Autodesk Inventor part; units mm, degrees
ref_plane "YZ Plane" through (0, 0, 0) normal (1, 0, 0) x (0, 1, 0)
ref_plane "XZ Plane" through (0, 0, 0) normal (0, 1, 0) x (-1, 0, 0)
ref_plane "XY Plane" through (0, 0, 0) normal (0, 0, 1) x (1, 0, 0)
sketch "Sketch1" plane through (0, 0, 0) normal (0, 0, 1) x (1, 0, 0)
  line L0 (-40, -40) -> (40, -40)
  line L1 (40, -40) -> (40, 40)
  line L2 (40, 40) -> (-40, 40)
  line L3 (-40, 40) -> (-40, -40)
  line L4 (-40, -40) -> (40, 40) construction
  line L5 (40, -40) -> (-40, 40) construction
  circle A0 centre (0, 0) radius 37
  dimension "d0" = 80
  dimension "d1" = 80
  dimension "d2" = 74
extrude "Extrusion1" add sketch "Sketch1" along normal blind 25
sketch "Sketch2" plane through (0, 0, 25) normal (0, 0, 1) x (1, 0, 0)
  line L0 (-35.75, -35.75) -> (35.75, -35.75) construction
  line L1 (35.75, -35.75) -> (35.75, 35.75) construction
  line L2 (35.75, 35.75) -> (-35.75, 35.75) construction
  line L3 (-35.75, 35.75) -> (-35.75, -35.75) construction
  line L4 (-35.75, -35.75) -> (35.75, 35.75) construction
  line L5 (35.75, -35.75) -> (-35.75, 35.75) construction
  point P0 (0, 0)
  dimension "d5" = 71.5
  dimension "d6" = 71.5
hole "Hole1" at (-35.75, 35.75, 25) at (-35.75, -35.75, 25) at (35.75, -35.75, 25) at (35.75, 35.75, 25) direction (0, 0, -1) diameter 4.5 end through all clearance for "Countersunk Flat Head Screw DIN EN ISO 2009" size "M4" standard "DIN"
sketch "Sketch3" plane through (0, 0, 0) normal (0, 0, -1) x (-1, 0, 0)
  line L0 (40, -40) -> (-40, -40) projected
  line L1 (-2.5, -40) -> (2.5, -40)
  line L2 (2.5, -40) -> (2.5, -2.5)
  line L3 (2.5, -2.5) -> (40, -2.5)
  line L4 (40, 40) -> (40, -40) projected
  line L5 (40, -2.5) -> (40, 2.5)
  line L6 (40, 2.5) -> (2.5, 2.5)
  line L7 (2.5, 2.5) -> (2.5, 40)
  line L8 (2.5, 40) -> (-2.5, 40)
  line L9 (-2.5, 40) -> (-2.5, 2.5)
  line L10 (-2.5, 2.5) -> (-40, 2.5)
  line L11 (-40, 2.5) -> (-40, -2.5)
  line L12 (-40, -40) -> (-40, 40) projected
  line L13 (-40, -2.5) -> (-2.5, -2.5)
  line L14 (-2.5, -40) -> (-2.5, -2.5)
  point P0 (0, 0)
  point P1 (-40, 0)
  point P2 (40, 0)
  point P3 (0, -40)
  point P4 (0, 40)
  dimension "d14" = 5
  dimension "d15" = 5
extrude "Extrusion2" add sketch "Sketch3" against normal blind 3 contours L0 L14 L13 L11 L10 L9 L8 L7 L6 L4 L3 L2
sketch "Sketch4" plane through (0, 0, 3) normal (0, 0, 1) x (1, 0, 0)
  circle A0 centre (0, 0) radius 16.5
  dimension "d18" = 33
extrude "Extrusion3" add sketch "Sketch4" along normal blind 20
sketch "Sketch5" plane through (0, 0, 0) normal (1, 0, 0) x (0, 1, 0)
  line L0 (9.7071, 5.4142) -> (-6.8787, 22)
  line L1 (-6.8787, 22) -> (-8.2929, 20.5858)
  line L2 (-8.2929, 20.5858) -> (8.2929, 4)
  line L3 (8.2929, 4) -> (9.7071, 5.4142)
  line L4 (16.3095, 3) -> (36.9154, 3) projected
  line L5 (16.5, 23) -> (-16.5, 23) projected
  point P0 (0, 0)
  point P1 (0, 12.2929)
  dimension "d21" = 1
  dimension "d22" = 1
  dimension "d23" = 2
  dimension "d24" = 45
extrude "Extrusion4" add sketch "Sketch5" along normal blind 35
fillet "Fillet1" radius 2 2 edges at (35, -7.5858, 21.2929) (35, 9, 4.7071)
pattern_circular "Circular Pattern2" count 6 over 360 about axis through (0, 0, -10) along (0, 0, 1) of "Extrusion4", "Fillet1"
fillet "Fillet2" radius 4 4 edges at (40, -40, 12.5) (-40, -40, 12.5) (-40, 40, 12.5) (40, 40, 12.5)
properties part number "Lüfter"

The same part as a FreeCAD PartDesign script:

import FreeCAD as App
import Part
import Sketcher
from FreeCAD import Vector
Q = App.Units.Quantity


def edges_at(feature, points):
    """Names of the edges that pass closest to the given points."""
    edges = feature.Shape.Edges
    near = lambda p: min(range(len(edges)), key=lambda i: edges[i].distToShape(Part.Vertex(*p))[0])
    return sorted({f"Edge{near(p) + 1}" for p in points})


def add_polygon(sketch, points):
    """Adds a closed chain of lines whose ends are joined by coincident constraints."""
    first, n = sketch.GeometryCount, len(points)
    for a, b in zip(points, points[1:] + points[:1]):
        sketch.addGeometry(Part.LineSegment(App.Vector(*a, 0), App.Vector(*b, 0)), False)
    for i in range(n):
        sketch.addConstraint(Sketcher.Constraint("Coincident", first + i, 2, first + (i + 1) % n, 1))

doc = App.newDocument("Part")
body = doc.addObject("PartDesign::Body", "Body")

sketch1 = doc.addObject("Sketcher::SketchObject", "Sketch")
body.addObject(sketch1)
sketch1.AttachmentSupport = (doc.XY_Plane, [""])
sketch1.MapMode = "FlatFace"
add_polygon(sketch1, [(-40, 40), (-40, -40), (40, -40), (40, 40)])
sketch1.addGeometry(Part.Circle(Vector(0, 0, 0), Vector(0, 0, 1), 37), False)
sketch1.addConstraint([
    Sketcher.Constraint("Vertical", 0),
    Sketcher.Constraint("Horizontal", 1),
    Sketcher.Constraint("Vertical", 2),
    Sketcher.Constraint("Horizontal", 3),
    Sketcher.Constraint("Coincident", 4, 3, -1, 1),
    Sketcher.Constraint("Symmetric", 0, 2, 2, 2, -1, 1),
    Sketcher.Constraint("Equal", 3, 0),
    Sketcher.Constraint("Diameter", 4, 74.0),
    Sketcher.Constraint("DistanceX", 1, 1, 1, 2, 80.0),
])
pad1 = doc.addObject("PartDesign::Pad", "Pad")
body.addObject(pad1)
pad1.Profile = sketch1
pad1.Length = 25

sketch2 = doc.addObject("Sketcher::SketchObject", "Sketch001")
body.addObject(sketch2)
sketch2.AttachmentSupport = (doc.XY_Plane, [""])
sketch2.MapMode = "FlatFace"
sketch2.AttachmentOffset = App.Placement(Vector(0, 0, 25), App.Rotation())
sketch2.addGeometry([
    Part.Circle(Vector(-35.8, 35.8, 0), Vector(0, 0, 1), 2.2),
    Part.Circle(Vector(-35.8, -35.8, 0), Vector(0, 0, 1), 2.2),
    Part.Circle(Vector(35.8, -35.8, 0), Vector(0, 0, 1), 2.2),
    Part.Circle(Vector(35.8, 35.8, 0), Vector(0, 0, 1), 2.2),
], False)
sketch2.addConstraint([
    Sketcher.Constraint("Equal", 0, 1),
    Sketcher.Constraint("Equal", 1, 2),
    Sketcher.Constraint("Equal", 2, 3),
    Sketcher.Constraint("Symmetric", 0, 3, 2, 3, -1, 1),
    Sketcher.Constraint("Symmetric", 1, 3, 3, 3, -1, 1),
    Sketcher.Constraint("Symmetric", 1, 3, 2, 3, -2),
    Sketcher.Constraint("Diameter", 0, 4.5),
    Sketcher.Constraint("DistanceY", 1, 3, 0, 3, 71.5),
    Sketcher.Constraint("DistanceX", 1, 3, 2, 3, 71.5),
])
doc.recompute()
hole = doc.addObject("PartDesign::Hole", "Hole")
body.addObject(hole)
hole.Profile = sketch2
hole.ThreadType = "None"
hole.Diameter = 4.5
hole.DepthType = "ThroughAll"

sketch3 = doc.addObject("Sketcher::SketchObject", "Sketch002")
body.addObject(sketch3)
sketch3.AttachmentSupport = (doc.XY_Plane, [""])
sketch3.MapMode = "FlatFace"
add_polygon(sketch3, [(2, -40), (-2, -40), (-2, -2), (-40, -2), (-40, 2), (-2, 2), (-2, 40), (2, 40), (2, 2), (40, 2), (40, -2), (2, -2)])
sketch3.addConstraint([
    Sketcher.Constraint("Horizontal", 0),
    Sketcher.Constraint("Vertical", 1),
    Sketcher.Constraint("Horizontal", 2),
    Sketcher.Constraint("Vertical", 3),
    Sketcher.Constraint("Horizontal", 4),
    Sketcher.Constraint("Vertical", 5),
    Sketcher.Constraint("Horizontal", 6),
    Sketcher.Constraint("Vertical", 7),
    Sketcher.Constraint("Horizontal", 8),
    Sketcher.Constraint("Vertical", 9),
    Sketcher.Constraint("Horizontal", 10),
    Sketcher.Constraint("Vertical", 11),
    Sketcher.Constraint("Symmetric", 0, 2, 6, 2, -1, 1),
    Sketcher.Constraint("Symmetric", 2, 2, 8, 2, -1, 1),
    Sketcher.Constraint("Symmetric", 4, 2, 10, 2, -1, 1),
    Sketcher.Constraint("Symmetric", 4, 2, 7, 2, -2),
    Sketcher.Constraint("Equal", 10, 1),
    Sketcher.Constraint("Equal", 6, 3),
    Sketcher.Constraint("DistanceX", 0, 2, 0, 1, 5.0),
    Sketcher.Constraint("DistanceX", 2, 2, 2, 1, 37.5),
])
pad2 = doc.addObject("PartDesign::Pad", "Pad001")
body.addObject(pad2)
pad2.Profile = sketch3
pad2.Length = 3

sketch4 = doc.addObject("Sketcher::SketchObject", "Sketch003")
body.addObject(sketch4)
sketch4.AttachmentSupport = (doc.XY_Plane, [""])
sketch4.MapMode = "FlatFace"
sketch4.AttachmentOffset = App.Placement(Vector(0, 0, 3), App.Rotation())
sketch4.addGeometry(Part.Circle(Vector(0, 0, 0), Vector(0, 0, 1), 16), False)
sketch4.addConstraint([
    Sketcher.Constraint("Coincident", 0, 3, -1, 1),
    Sketcher.Constraint("Diameter", 0, 33.0),
])
pad3 = doc.addObject("PartDesign::Pad", "Pad002")
body.addObject(pad3)
pad3.Profile = sketch4
pad3.Length = 20

sketch5 = doc.addObject("Sketcher::SketchObject", "Sketch004")
body.addObject(sketch5)
sketch5.AttachmentSupport = (doc.YZ_Plane, [""])
sketch5.MapMode = "FlatFace"
add_polygon(sketch5, [(8.3, 4), (9.7, 5.4), (-6.9, 22), (-8.3, 20.6)])
sketch5.addConstraint([
    Sketcher.Constraint("Perpendicular", 0, 1),
    Sketcher.Constraint("Perpendicular", 1, 2),
    Sketcher.Constraint("Perpendicular", 2, 3),
    Sketcher.Constraint("Angle", 0, Q("45 deg")),
    Sketcher.Constraint("Distance", 0, 2.0),
    Sketcher.Constraint("DistanceY", -1, 1, 1, 2, 22.0),
    Sketcher.Constraint("DistanceY", -1, 1, 3, 2, 4.0),
    Sketcher.Constraint("DistanceX", -1, 1, 0, 2, 9.707),
])
pad4 = doc.addObject("PartDesign::Pad", "Pad003")
body.addObject(pad4)
pad4.Profile = sketch5
pad4.Length = 35
doc.recompute()

fillet = doc.addObject("PartDesign::Fillet", "Fillet")
body.addObject(fillet)
fillet.Base = (pad4, edges_at(pad4, [(35, -7.586, 21.293), (35, 9, 4.707)]))
fillet.Radius = 2
doc.recompute()

polarpattern = doc.addObject("PartDesign::PolarPattern", "PolarPattern")
body.addObject(polarpattern)
polarpattern.Originals = [pad4, fillet]
polarpattern.Axis = (doc.Z_Axis, [""])
polarpattern.Angle = 360
polarpattern.Occurrences = 6
body.Tip = polarpattern
doc.recompute()

fillet2 = doc.addObject("PartDesign::Fillet", "Fillet001")
body.addObject(fillet2)
fillet2.Base = (polarpattern, edges_at(polarpattern, [
    (40, -40, 12.5),
    (-40, -40, 12.5),
    (-40, 40, 12.5),
    (40, 40, 12.5),
]))
fillet2.Radius = 4

doc.recompute()
